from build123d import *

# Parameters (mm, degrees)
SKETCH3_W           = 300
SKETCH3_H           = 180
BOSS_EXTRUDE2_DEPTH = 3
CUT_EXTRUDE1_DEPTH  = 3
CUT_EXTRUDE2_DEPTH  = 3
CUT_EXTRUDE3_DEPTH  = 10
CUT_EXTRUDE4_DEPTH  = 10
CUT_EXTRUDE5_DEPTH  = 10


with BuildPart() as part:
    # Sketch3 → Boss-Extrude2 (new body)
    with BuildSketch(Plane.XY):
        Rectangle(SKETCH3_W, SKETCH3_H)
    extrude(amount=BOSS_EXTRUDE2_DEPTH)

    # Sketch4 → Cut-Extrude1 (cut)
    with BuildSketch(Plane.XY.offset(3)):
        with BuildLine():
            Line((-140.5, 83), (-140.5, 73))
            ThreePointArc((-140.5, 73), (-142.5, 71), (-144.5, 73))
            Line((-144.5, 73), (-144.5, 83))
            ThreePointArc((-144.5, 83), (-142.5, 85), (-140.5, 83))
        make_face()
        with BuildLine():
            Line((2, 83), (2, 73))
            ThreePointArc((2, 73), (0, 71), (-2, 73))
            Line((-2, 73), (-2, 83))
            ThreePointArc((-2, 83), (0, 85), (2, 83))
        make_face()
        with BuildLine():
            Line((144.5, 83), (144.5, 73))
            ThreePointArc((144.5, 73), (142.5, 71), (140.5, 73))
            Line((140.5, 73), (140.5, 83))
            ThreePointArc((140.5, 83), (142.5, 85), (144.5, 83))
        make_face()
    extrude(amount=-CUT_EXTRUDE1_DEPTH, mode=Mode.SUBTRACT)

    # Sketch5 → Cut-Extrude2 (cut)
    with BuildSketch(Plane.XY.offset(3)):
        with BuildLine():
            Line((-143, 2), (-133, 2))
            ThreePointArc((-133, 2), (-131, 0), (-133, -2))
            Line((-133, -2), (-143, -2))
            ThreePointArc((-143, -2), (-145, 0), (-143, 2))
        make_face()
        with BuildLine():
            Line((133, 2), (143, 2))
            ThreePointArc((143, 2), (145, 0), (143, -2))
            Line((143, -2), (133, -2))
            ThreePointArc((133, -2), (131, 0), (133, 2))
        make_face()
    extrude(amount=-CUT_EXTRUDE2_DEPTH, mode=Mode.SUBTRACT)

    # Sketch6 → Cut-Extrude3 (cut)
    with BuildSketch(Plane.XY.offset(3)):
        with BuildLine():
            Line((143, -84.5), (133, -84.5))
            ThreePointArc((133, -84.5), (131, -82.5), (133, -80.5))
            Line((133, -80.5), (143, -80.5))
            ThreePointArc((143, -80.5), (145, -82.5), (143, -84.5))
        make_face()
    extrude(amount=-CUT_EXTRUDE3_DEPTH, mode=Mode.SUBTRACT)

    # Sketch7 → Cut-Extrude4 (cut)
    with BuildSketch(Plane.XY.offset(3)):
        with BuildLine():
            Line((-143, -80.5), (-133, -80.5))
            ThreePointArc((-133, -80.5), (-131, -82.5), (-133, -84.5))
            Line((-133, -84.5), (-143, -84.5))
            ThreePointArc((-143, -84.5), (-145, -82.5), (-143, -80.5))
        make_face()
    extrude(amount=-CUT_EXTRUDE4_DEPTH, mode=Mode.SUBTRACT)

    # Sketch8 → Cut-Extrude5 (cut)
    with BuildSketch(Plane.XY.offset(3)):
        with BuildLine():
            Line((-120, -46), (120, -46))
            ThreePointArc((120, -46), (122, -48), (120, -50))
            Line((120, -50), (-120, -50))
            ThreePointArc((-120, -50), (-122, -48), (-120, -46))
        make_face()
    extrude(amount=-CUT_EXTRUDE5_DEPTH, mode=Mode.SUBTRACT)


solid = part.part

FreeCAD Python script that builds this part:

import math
import FreeCAD as App
import Part
import Sketcher
Q = App.Units.Quantity


def add_polygon(sketch, points):
    """Adds a closed chain of lines whose ends are joined by coincident constraints."""
    first, n = sketch.GeometryCount, len(points)
    for a, b in zip(points, points[1:] + points[:1]):
        sketch.addGeometry(Part.LineSegment(App.Vector(*a, 0), App.Vector(*b, 0)), False)
    for i in range(n):
        sketch.addConstraint(Sketcher.Constraint("Coincident", first + i, 2, first + (i + 1) % n, 1))

doc = App.newDocument("Part")
body = doc.addObject("PartDesign::Body", "Body")

# Sketch on XY plane
sketch1 = body.newObject("Sketcher::SketchObject", "Sketch")
sketch1.AttachmentSupport = (doc.getObject("XY_Plane"), [""])
sketch1.MapMode = "FlatFace"
add_polygon(sketch1, [(-150, 90), (-150, -90), (150, -90), (150, 90)])  # lines 0-3
sketch1.addConstraint([
    Sketcher.Constraint("Vertical", 0),
    Sketcher.Constraint("Horizontal", 1),
    Sketcher.Constraint("Vertical", 2),
    Sketcher.Constraint("Horizontal", 3),
    Sketcher.Constraint("Symmetric", 0, 2, 2, 2, -1, 1),
    Sketcher.Constraint("DistanceX", 1, 1, 1, 2, Q("300 mm")),
    Sketcher.Constraint("DistanceY", 0, 2, 0, 1, Q("180 mm")),
])
pad1 = body.newObject("PartDesign::Pad", "Pad")
pad1.Profile = sketch1
pad1.Length = 3

# Sketch on XY plane
sketch2 = body.newObject("Sketcher::SketchObject", "Sketch001")
sketch2.AttachmentSupport = (doc.getObject("XY_Plane"), [""])
sketch2.MapMode = "FlatFace"
sketch2.AttachmentOffset = App.Placement(App.Vector(0, 0, 3), App.Rotation())
sketch2.addGeometry([
    Part.LineSegment(App.Vector(-140.5, 73, 0), App.Vector(-140.5, 83, 0)),  # 0
    Part.ArcOfCircle(Part.Circle(App.Vector(-142.5, 83, 0), App.Vector(0, 0, 1), 2), math.radians(0), math.radians(180)),  # 1
    Part.LineSegment(App.Vector(-144.5, 83, 0), App.Vector(-144.5, 73, 0)),  # 2
    Part.ArcOfCircle(Part.Circle(App.Vector(-142.5, 73, 0), App.Vector(0, 0, 1), 2), math.radians(180), math.radians(360)),  # 3
    Part.LineSegment(App.Vector(2, 73, 0), App.Vector(2, 83, 0)),  # 4
    Part.ArcOfCircle(Part.Circle(App.Vector(0, 83, 0), App.Vector(0, 0, 1), 2), math.radians(0), math.radians(180)),  # 5
    Part.LineSegment(App.Vector(-2, 83, 0), App.Vector(-2, 73, 0)),  # 6
    Part.ArcOfCircle(Part.Circle(App.Vector(0, 73, 0), App.Vector(0, 0, 1), 2), math.radians(180), math.radians(360)),  # 7
    Part.LineSegment(App.Vector(144.5, 73, 0), App.Vector(144.5, 83, 0)),  # 8
    Part.ArcOfCircle(Part.Circle(App.Vector(142.5, 83, 0), App.Vector(0, 0, 1), 2), math.radians(0), math.radians(180)),  # 9
    Part.LineSegment(App.Vector(140.5, 83, 0), App.Vector(140.5, 73, 0)),  # 10
    Part.ArcOfCircle(Part.Circle(App.Vector(142.5, 73, 0), App.Vector(0, 0, 1), 2), math.radians(180), math.radians(360)),  # 11
], False)
sketch2.addConstraint([
    Sketcher.Constraint("Tangent", 0, 2, 1, 1),
    Sketcher.Constraint("Tangent", 1, 2, 2, 1),
    Sketcher.Constraint("Tangent", 2, 2, 3, 1),
    Sketcher.Constraint("Tangent", 3, 2, 0, 1),
    Sketcher.Constraint("Tangent", 4, 2, 5, 1),
    Sketcher.Constraint("Tangent", 5, 2, 6, 1),
    Sketcher.Constraint("Tangent", 6, 2, 7, 1),
    Sketcher.Constraint("Tangent", 7, 2, 4, 1),
    Sketcher.Constraint("Tangent", 8, 2, 9, 1),
    Sketcher.Constraint("Tangent", 9, 2, 10, 1),
    Sketcher.Constraint("Tangent", 10, 2, 11, 1),
    Sketcher.Constraint("Tangent", 11, 2, 8, 1),
    Sketcher.Constraint("Vertical", 0),
    Sketcher.Constraint("Vertical", 2),
    Sketcher.Constraint("Vertical", 4),
    Sketcher.Constraint("Vertical", 6),
    Sketcher.Constraint("Vertical", 8),
    Sketcher.Constraint("Vertical", 10),
    Sketcher.Constraint("Equal", 3, 5),
    Sketcher.Constraint("Equal", 7, 9),
    Sketcher.Constraint("Symmetric", 1, 3, 9, 3, -2),
    Sketcher.Constraint("PointOnObject", 5, 3, -2),
    Sketcher.Constraint("Horizontal", 1, 3, 5, 3),
    Sketcher.Constraint("Horizontal", 3, 3, 7, 3),
    Sketcher.Constraint("Horizontal", 7, 3, 11, 3),
    Sketcher.Constraint("Radius", 1, Q("2 mm")),
    Sketcher.Constraint("DistanceY", 0, 1, 0, 2, Q("10 mm")),
    Sketcher.Constraint("DistanceY", -1, 1, 1, 3, Q("83 mm")),
    Sketcher.Constraint("DistanceX", 1, 3, 9, 3, Q("285 mm")),
])
pocket1 = body.newObject("PartDesign::Pocket", "Pocket")
pocket1.Profile = sketch2
pocket1.Length = 3

# Sketch on XY plane
sketch3 = body.newObject("Sketcher::SketchObject", "Sketch002")
sketch3.AttachmentSupport = (doc.getObject("XY_Plane"), [""])
sketch3.MapMode = "FlatFace"
sketch3.AttachmentOffset = App.Placement(App.Vector(0, 0, 3), App.Rotation())
sketch3.addGeometry([
    Part.LineSegment(App.Vector(-133, 2, 0), App.Vector(-143, 2, 0)),  # 0
    Part.ArcOfCircle(Part.Circle(App.Vector(-143, 0, 0), App.Vector(0, 0, 1), 2), math.radians(90), math.radians(270)),  # 1
    Part.LineSegment(App.Vector(-143, -2, 0), App.Vector(-133, -2, 0)),  # 2
    Part.ArcOfCircle(Part.Circle(App.Vector(-133, 0, 0), App.Vector(0, 0, 1), 2), math.radians(-90), math.radians(90)),  # 3
    Part.LineSegment(App.Vector(143, 2, 0), App.Vector(133, 2, 0)),  # 4
    Part.ArcOfCircle(Part.Circle(App.Vector(133, 0, 0), App.Vector(0, 0, 1), 2), math.radians(90), math.radians(270)),  # 5
    Part.LineSegment(App.Vector(133, -2, 0), App.Vector(143, -2, 0)),  # 6
    Part.ArcOfCircle(Part.Circle(App.Vector(143, 0, 0), App.Vector(0, 0, 1), 2), math.radians(-90), math.radians(90)),  # 7
], False)
sketch3.addConstraint([
    Sketcher.Constraint("Tangent", 0, 2, 1, 1),
    Sketcher.Constraint("Tangent", 1, 2, 2, 1),
    Sketcher.Constraint("Tangent", 2, 2, 3, 1),
    Sketcher.Constraint("Tangent", 3, 2, 0, 1),
    Sketcher.Constraint("Tangent", 4, 2, 5, 1),
    Sketcher.Constraint("Tangent", 5, 2, 6, 1),
    Sketcher.Constraint("Tangent", 6, 2, 7, 1),
    Sketcher.Constraint("Tangent", 7, 2, 4, 1),
    Sketcher.Constraint("Horizontal", 0),
    Sketcher.Constraint("Horizontal", 2),
    Sketcher.Constraint("Horizontal", 4),
    Sketcher.Constraint("Horizontal", 6),
    Sketcher.Constraint("Equal", 3, 5),
    Sketcher.Constraint("Symmetric", 3, 3, 5, 3, -1, 1),
    Sketcher.Constraint("Symmetric", 1, 3, 7, 3, -2),
    Sketcher.Constraint("Radius", 1, Q("2 mm")),
    Sketcher.Constraint("DistanceX", 0, 2, 0, 1, Q("10 mm")),
    Sketcher.Constraint("DistanceX", 1, 3, -1, 1, Q("143 mm")),
])
pocket2 = body.newObject("PartDesign::Pocket", "Pocket001")
pocket2.Profile = sketch3
pocket2.Length = 3

# Sketch on XY plane
sketch4 = body.newObject("Sketcher::SketchObject", "Sketch003")
sketch4.AttachmentSupport = (doc.getObject("XY_Plane"), [""])
sketch4.MapMode = "FlatFace"
sketch4.AttachmentOffset = App.Placement(App.Vector(0, 0, 3), App.Rotation())
sketch4.addGeometry([
    Part.LineSegment(App.Vector(133, -84.5, 0), App.Vector(143, -84.5, 0)),
    Part.ArcOfCircle(Part.Circle(App.Vector(143, -82.5, 0), App.Vector(0, 0, 1), 2), math.radians(-90), math.radians(90)),
    Part.LineSegment(App.Vector(143, -80.5, 0), App.Vector(133, -80.5, 0)),
    Part.ArcOfCircle(Part.Circle(App.Vector(133, -82.5, 0), App.Vector(0, 0, 1), 2), math.radians(90), math.radians(270)),
], False)
sketch4.addConstraint([
    Sketcher.Constraint("Tangent", 0, 2, 1, 1),
    Sketcher.Constraint("Tangent", 1, 2, 2, 1),
    Sketcher.Constraint("Tangent", 2, 2, 3, 1),
    Sketcher.Constraint("Tangent", 3, 2, 0, 1),
    Sketcher.Constraint("Horizontal", 0),
    Sketcher.Constraint("Horizontal", 2),
    Sketcher.Constraint("Radius", 1, Q("2 mm")),
    Sketcher.Constraint("DistanceX", 0, 1, 0, 2, Q("10 mm")),
    Sketcher.Constraint("DistanceX", -1, 1, 1, 3, Q("143 mm")),
    Sketcher.Constraint("DistanceY", 1, 3, -1, 1, Q("82.5 mm")),
])
pocket3 = body.newObject("PartDesign::Pocket", "Pocket002")
pocket3.Profile = sketch4
pocket3.Length = 10

# Sketch on XY plane
sketch5 = body.newObject("Sketcher::SketchObject", "Sketch004")
sketch5.AttachmentSupport = (doc.getObject("XY_Plane"), [""])
sketch5.MapMode = "FlatFace"
sketch5.AttachmentOffset = App.Placement(App.Vector(0, 0, 3), App.Rotation())
sketch5.addGeometry([
    Part.LineSegment(App.Vector(-133, -80.5, 0), App.Vector(-143, -80.5, 0)),
    Part.ArcOfCircle(Part.Circle(App.Vector(-143, -82.5, 0), App.Vector(0, 0, 1), 2), math.radians(90), math.radians(270)),
    Part.LineSegment(App.Vector(-143, -84.5, 0), App.Vector(-133, -84.5, 0)),
    Part.ArcOfCircle(Part.Circle(App.Vector(-133, -82.5, 0), App.Vector(0, 0, 1), 2), math.radians(-90), math.radians(90)),
], False)
sketch5.addConstraint([
    Sketcher.Constraint("Tangent", 0, 2, 1, 1),
    Sketcher.Constraint("Tangent", 1, 2, 2, 1),
    Sketcher.Constraint("Tangent", 2, 2, 3, 1),
    Sketcher.Constraint("Tangent", 3, 2, 0, 1),
    Sketcher.Constraint("Horizontal", 0),
    Sketcher.Constraint("Horizontal", 2),
    Sketcher.Constraint("Radius", 1, Q("2 mm")),
    Sketcher.Constraint("DistanceX", 0, 2, 0, 1, Q("10 mm")),
    Sketcher.Constraint("DistanceX", 1, 3, -1, 1, Q("143 mm")),
    Sketcher.Constraint("DistanceY", 1, 3, -1, 1, Q("82.5 mm")),
])
pocket4 = body.newObject("PartDesign::Pocket", "Pocket003")
pocket4.Profile = sketch5
pocket4.Length = 10

# Sketch on XY plane
sketch6 = body.newObject("Sketcher::SketchObject", "Sketch005")
sketch6.AttachmentSupport = (doc.getObject("XY_Plane"), [""])
sketch6.MapMode = "FlatFace"
sketch6.AttachmentOffset = App.Placement(App.Vector(0, 0, 3), App.Rotation())
sketch6.addGeometry([
    Part.LineSegment(App.Vector(120, -46, 0), App.Vector(-120, -46, 0)),
    Part.ArcOfCircle(Part.Circle(App.Vector(-120, -48, 0), App.Vector(0, 0, 1), 2), math.radians(90), math.radians(270)),
    Part.LineSegment(App.Vector(-120, -50, 0), App.Vector(120, -50, 0)),
    Part.ArcOfCircle(Part.Circle(App.Vector(120, -48, 0), App.Vector(0, 0, 1), 2), math.radians(-90), math.radians(90)),
], False)
sketch6.addConstraint([
    Sketcher.Constraint("Tangent", 0, 2, 1, 1),
    Sketcher.Constraint("Tangent", 1, 2, 2, 1),
    Sketcher.Constraint("Tangent", 2, 2, 3, 1),
    Sketcher.Constraint("Tangent", 3, 2, 0, 1),
    Sketcher.Constraint("Horizontal", 0),
    Sketcher.Constraint("Horizontal", 2),
    Sketcher.Constraint("Radius", 1, Q("2 mm")),
    Sketcher.Constraint("DistanceX", 0, 2, 0, 1, Q("240 mm")),
    Sketcher.Constraint("DistanceX", 1, 3, -1, 1, Q("120 mm")),
    Sketcher.Constraint("DistanceY", 1, 3, -1, 1, Q("48 mm")),
])
pocket5 = body.newObject("PartDesign::Pocket", "Pocket004")
pocket5.Profile = sketch6
pocket5.Length = 10

doc.recompute()
